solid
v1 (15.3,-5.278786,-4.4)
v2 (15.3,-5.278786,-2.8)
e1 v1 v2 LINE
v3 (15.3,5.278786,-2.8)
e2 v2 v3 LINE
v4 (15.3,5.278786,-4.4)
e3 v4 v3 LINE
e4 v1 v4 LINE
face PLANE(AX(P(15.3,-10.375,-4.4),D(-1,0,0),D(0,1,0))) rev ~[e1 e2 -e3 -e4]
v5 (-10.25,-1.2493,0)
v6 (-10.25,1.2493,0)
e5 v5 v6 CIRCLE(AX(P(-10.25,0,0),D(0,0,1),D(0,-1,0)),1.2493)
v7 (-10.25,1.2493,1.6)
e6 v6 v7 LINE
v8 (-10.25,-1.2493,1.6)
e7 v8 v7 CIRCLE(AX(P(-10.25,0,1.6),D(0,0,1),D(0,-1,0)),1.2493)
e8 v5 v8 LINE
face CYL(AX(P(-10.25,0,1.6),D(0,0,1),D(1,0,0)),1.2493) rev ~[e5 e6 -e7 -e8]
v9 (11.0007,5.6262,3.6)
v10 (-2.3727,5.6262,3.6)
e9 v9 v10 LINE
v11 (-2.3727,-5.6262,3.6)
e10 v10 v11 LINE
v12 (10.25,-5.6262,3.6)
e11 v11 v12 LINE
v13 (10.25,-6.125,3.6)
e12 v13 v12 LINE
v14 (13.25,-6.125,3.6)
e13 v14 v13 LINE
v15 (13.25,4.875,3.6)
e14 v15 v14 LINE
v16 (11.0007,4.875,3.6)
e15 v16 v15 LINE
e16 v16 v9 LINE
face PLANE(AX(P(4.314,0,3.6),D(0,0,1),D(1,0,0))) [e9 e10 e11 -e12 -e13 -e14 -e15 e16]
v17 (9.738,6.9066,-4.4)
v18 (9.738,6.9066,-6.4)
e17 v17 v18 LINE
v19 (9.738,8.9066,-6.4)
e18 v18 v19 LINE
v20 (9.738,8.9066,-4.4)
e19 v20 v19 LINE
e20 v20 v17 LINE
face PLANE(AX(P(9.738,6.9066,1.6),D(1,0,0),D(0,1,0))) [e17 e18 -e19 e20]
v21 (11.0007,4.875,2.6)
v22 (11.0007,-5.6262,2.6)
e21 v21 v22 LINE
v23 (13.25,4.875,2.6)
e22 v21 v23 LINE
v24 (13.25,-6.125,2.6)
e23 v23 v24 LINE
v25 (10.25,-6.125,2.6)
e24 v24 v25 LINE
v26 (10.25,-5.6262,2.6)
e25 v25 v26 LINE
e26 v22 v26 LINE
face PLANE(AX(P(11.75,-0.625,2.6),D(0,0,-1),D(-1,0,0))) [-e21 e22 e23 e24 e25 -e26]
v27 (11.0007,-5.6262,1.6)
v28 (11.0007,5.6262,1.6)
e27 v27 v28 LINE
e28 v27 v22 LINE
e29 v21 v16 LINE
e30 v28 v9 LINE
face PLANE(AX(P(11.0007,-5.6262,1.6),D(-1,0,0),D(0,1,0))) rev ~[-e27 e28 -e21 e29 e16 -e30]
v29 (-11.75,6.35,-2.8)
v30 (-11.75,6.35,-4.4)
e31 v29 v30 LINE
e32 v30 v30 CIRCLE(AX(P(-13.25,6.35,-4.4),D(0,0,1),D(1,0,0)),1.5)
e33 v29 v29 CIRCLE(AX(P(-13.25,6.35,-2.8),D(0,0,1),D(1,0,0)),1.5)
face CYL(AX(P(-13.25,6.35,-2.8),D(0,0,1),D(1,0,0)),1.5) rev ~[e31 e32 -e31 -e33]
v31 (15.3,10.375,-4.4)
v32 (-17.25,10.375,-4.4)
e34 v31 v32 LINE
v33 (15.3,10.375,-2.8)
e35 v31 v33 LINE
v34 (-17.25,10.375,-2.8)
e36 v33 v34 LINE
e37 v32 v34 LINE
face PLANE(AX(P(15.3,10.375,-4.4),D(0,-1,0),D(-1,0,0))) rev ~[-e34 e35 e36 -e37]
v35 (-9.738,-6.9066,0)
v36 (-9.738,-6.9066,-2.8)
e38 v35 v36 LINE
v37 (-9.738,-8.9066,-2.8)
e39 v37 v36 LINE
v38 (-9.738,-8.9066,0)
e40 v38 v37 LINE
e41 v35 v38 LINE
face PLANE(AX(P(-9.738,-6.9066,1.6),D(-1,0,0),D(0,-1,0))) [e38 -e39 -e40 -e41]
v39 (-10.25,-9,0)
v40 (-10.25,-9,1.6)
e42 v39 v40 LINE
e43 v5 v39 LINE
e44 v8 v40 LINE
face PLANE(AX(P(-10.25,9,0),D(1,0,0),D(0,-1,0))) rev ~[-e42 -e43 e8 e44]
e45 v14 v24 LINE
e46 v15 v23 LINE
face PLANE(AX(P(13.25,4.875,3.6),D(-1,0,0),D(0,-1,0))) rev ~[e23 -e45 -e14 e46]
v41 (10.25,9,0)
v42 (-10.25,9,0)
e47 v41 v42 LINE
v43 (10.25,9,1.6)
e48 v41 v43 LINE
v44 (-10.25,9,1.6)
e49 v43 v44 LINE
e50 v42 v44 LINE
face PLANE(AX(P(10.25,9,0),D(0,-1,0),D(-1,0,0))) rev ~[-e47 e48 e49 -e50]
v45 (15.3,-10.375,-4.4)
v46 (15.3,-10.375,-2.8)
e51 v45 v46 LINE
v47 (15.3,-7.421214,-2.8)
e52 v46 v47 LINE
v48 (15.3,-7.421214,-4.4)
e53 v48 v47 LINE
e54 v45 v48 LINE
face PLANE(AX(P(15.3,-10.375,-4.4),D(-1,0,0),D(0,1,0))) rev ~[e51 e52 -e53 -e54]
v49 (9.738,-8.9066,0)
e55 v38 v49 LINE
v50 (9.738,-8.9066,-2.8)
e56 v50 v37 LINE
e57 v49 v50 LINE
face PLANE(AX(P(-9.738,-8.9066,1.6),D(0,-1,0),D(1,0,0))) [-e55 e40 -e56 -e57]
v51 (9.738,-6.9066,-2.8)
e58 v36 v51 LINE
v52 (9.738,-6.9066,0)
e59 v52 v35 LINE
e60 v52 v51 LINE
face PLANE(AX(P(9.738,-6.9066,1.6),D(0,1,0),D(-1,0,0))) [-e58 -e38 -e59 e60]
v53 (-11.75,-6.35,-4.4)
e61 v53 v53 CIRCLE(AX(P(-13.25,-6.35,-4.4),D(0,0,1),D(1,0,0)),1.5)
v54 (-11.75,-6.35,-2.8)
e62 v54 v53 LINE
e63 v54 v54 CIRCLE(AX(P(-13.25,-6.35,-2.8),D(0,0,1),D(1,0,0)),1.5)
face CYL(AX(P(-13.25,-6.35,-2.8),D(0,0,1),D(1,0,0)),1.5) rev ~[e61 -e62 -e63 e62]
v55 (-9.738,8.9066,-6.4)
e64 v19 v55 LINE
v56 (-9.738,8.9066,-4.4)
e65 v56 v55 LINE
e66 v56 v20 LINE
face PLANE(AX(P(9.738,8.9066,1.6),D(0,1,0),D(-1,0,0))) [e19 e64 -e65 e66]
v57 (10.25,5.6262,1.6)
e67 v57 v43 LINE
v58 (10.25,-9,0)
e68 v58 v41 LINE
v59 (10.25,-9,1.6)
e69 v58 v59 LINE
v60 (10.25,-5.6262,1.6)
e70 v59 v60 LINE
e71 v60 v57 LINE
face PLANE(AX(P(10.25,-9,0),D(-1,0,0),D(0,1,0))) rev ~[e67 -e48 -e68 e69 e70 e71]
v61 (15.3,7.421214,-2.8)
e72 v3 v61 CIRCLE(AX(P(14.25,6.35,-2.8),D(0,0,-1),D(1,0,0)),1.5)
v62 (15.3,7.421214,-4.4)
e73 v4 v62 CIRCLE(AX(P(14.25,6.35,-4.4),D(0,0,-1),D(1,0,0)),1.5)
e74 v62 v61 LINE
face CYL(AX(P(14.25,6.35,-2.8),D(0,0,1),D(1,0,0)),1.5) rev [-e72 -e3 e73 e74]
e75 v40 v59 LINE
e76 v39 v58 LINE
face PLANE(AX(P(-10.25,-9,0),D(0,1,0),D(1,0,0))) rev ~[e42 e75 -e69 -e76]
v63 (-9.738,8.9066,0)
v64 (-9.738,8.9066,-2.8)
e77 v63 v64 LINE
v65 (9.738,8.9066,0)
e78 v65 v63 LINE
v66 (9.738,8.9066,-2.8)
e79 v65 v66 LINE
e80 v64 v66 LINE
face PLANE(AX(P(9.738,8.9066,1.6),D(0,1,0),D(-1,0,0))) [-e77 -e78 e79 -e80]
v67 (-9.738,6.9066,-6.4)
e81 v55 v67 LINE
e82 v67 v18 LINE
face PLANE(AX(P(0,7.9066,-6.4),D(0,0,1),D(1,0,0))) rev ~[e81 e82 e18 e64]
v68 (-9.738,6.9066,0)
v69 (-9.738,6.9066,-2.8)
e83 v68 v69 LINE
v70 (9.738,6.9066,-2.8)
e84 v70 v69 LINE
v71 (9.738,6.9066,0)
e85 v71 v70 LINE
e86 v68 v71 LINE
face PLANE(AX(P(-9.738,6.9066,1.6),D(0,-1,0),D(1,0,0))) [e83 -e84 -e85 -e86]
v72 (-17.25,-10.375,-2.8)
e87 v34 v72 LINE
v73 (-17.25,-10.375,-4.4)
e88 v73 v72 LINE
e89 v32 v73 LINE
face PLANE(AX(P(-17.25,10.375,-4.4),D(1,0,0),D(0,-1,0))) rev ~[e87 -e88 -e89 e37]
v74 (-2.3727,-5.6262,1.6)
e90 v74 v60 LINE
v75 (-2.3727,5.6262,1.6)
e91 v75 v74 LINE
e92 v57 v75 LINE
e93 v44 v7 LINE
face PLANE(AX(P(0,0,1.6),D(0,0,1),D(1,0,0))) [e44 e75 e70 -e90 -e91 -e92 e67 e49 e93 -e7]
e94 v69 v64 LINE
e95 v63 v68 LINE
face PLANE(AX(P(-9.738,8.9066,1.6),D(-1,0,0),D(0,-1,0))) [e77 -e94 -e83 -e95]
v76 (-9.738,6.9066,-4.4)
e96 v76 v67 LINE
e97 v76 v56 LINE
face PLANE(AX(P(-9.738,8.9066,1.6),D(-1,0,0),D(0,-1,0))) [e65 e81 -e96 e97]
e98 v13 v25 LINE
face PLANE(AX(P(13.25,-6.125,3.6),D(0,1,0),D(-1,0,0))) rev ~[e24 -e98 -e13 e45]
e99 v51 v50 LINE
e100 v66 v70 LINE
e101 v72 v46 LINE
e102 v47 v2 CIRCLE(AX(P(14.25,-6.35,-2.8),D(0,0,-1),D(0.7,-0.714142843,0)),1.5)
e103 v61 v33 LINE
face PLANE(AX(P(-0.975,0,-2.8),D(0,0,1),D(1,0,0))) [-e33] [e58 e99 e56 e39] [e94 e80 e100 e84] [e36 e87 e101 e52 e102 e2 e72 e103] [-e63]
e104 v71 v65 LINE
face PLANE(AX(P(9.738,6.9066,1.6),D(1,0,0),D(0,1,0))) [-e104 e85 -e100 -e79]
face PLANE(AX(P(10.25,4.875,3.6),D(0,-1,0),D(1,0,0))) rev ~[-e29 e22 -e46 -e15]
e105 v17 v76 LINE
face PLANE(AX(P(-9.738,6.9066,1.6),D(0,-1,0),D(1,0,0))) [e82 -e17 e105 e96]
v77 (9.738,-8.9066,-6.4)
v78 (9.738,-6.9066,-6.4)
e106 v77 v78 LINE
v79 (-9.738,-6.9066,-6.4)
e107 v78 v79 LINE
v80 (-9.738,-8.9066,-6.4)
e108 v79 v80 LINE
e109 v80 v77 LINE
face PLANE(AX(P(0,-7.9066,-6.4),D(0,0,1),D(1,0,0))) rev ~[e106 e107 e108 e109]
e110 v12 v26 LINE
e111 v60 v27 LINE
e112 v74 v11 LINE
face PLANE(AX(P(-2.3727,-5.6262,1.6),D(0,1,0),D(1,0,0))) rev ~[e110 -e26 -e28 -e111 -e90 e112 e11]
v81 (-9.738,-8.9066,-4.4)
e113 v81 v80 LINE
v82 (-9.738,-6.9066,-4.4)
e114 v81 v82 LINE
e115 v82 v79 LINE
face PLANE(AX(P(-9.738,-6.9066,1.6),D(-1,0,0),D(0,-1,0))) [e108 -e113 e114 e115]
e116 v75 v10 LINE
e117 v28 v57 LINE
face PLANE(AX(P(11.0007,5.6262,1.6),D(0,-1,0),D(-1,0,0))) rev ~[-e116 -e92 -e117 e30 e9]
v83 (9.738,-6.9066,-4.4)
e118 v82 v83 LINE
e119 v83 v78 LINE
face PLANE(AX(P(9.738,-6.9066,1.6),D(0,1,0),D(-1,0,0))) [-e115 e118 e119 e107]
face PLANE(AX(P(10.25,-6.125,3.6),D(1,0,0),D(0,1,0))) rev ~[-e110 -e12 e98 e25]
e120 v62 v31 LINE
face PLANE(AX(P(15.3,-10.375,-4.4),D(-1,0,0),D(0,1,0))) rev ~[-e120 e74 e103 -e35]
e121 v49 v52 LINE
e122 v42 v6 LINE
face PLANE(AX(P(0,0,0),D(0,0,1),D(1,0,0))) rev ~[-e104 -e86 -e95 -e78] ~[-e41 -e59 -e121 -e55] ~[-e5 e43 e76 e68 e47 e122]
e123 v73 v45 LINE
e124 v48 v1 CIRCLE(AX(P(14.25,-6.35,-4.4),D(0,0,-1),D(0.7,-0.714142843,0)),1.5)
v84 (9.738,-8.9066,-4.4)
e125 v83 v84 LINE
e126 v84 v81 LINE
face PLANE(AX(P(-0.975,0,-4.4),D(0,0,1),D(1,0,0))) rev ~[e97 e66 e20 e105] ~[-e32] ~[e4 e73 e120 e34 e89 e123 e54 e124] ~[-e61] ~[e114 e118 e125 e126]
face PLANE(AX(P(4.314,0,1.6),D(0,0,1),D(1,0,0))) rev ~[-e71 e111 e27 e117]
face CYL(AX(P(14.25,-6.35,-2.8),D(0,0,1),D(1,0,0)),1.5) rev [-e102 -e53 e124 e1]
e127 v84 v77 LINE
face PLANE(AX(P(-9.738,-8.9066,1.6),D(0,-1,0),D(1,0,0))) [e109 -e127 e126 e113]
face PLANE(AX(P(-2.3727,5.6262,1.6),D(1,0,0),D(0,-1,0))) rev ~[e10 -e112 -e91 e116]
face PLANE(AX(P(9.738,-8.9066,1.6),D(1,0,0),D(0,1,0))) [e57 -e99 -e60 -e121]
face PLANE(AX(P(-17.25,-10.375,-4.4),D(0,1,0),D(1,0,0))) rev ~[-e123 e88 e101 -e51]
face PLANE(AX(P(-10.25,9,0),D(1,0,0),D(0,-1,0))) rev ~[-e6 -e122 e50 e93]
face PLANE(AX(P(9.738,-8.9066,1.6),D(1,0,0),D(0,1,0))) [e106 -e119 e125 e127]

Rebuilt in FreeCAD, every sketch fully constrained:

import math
import FreeCAD as App
import Part
import Sketcher
from FreeCAD import Vector


def add_polygon(sketch, points):
    """Adds a closed chain of lines whose ends are joined by coincident constraints."""
    first, n = sketch.GeometryCount, len(points)
    for a, b in zip(points, points[1:] + points[:1]):
        sketch.addGeometry(Part.LineSegment(App.Vector(*a, 0), App.Vector(*b, 0)), False)
    for i in range(n):
        sketch.addConstraint(Sketcher.Constraint("Coincident", first + i, 2, first + (i + 1) % n, 1))

doc = App.newDocument("Part")
body = doc.addObject("PartDesign::Body", "Body")

# Sketch on XY plane
sketch1 = body.newObject("Sketcher::SketchObject", "Sketch")
sketch1.AttachmentSupport = (doc.getObject("XY_Plane"), [""])
sketch1.MapMode = "FlatFace"
add_polygon(sketch1, [(10, 9), (-10, 9), (-10, -9), (10, -9)])  # lines 0-3
sketch1.addConstraint([
    Sketcher.Constraint("Horizontal", 0),
    Sketcher.Constraint("Vertical", 1),
    Sketcher.Constraint("Horizontal", 2),
    Sketcher.Constraint("Vertical", 3),
    Sketcher.Constraint("Symmetric", 0, 2, 2, 2, -1, 1),
    Sketcher.Constraint("DistanceY", 1, 2, 1, 1, 18.0),
    Sketcher.Constraint("DistanceX", 0, 2, 0, 1, 20.5),
])
pad1 = body.newObject("PartDesign::Pad", "Pad")
pad1.Profile = sketch1
pad1.Length = 1.6

# Sketch on XY plane
sketch2 = body.newObject("Sketcher::SketchObject", "Sketch001")
sketch2.AttachmentSupport = (doc.getObject("XY_Plane"), [""])
sketch2.MapMode = "FlatFace"
sketch2.AttachmentOffset = App.Placement(Vector(0, 0, 1.6), App.Rotation())
sketch2.addGeometry(Part.Circle(Vector(-10.2, 0, 0), Vector(0, 0, 1), 1.2), False)
sketch2.addConstraint([
    Sketcher.Constraint("PointOnObject", 0, 3, -1),
    Sketcher.Constraint("Diameter", 0, 2.4986),
    Sketcher.Constraint("DistanceX", 0, 3, -1, 1, 10.25),
])
pocket1 = body.newObject("PartDesign::Pocket", "Pocket")
pocket1.Profile = sketch2
pocket1.Length = 1.6

# Sketch on XY plane
sketch3 = body.newObject("Sketcher::SketchObject", "Sketch002")
sketch3.AttachmentSupport = (doc.getObject("XY_Plane"), [""])
sketch3.MapMode = "FlatFace"
sketch3.AttachmentOffset = App.Placement(Vector(0, 0, 1.6), App.Rotation())
add_polygon(sketch3, [(9.7, 6.9), (9.7, 8.9), (-9.7, 8.9), (-9.7, 6.9)])  # lines 0-3
add_polygon(sketch3, [(-9.7, -8.9), (9.7, -8.9), (9.7, -6.9), (-9.7, -6.9)])  # lines 4-7
sketch3.addConstraint([
    Sketcher.Constraint("Vertical", 0),
    Sketcher.Constraint("Horizontal", 1),
    Sketcher.Constraint("Vertical", 2),
    Sketcher.Constraint("Horizontal", 3),
    Sketcher.Constraint("Horizontal", 4),
    Sketcher.Constraint("Vertical", 5),
    Sketcher.Constraint("Horizontal", 6),
    Sketcher.Constraint("Vertical", 7),
    Sketcher.Constraint("Symmetric", 1, 2, 4, 2, -1, 1),
    Sketcher.Constraint("Symmetric", 3, 2, 6, 2, -1, 1),
    Sketcher.Constraint("Vertical", 3, 2, 4, 2),
    Sketcher.Constraint("DistanceY", 0, 1, 0, 2, 2.0),
    Sketcher.Constraint("DistanceX", 1, 2, 1, 1, 19.476),
    Sketcher.Constraint("DistanceY", -1, 1, 0, 2, 8.9066),
])
pad2 = body.newObject("PartDesign::Pad", "Pad001")
pad2.Profile = sketch3
pad2.Length = 8
pad2.Reversed = True

# Sketch on XY plane
sketch4 = body.newObject("Sketcher::SketchObject", "Sketch003")
sketch4.AttachmentSupport = (doc.getObject("XY_Plane"), [""])
sketch4.MapMode = "FlatFace"
sketch4.AttachmentOffset = App.Placement(Vector(0, 0, 1.6), App.Rotation())
add_polygon(sketch4, [(11, -6), (11, 6), (-2, 6), (-2, -6)])  # lines 0-3
sketch4.addConstraint([
    Sketcher.Constraint("Vertical", 0),
    Sketcher.Constraint("Horizontal", 1),
    Sketcher.Constraint("Vertical", 2),
    Sketcher.Constraint("Horizontal", 3),
    Sketcher.Constraint("DistanceX", 1, 2, 1, 1, 13.3734),
    Sketcher.Constraint("DistanceY", 0, 1, 0, 2, 11.2524),
    Sketcher.Constraint("DistanceX", -1, 1, 0, 2, 11.0007),
    Sketcher.Constraint("DistanceY", -1, 1, 0, 2, 5.6262),
])
pad3 = body.newObject("PartDesign::Pad", "Pad002")
pad3.Profile = sketch4
pad3.Length = 2

# Sketch on XY plane
sketch5 = body.newObject("Sketcher::SketchObject", "Sketch004")
sketch5.AttachmentSupport = (doc.getObject("XY_Plane"), [""])
sketch5.MapMode = "FlatFace"
sketch5.AttachmentOffset = App.Placement(Vector(0, 0, -4.4), App.Rotation())
add_polygon(sketch5, [(-17, -10), (15, -10), (15, 10), (-17, 10)])  # lines 0-3
sketch5.addConstraint([
    Sketcher.Constraint("Horizontal", 0),
    Sketcher.Constraint("Vertical", 1),
    Sketcher.Constraint("Horizontal", 2),
    Sketcher.Constraint("Vertical", 3),
    Sketcher.Constraint("DistanceX", 0, 1, 0, 2, 32.55),
    Sketcher.Constraint("DistanceY", 1, 1, 1, 2, 20.75),
    Sketcher.Constraint("DistanceX", -1, 1, 0, 2, 15.3),
    Sketcher.Constraint("DistanceY", 0, 2, -1, 1, 10.375),
])
pad4 = body.newObject("PartDesign::Pad", "Pad003")
pad4.Profile = sketch5
pad4.Length = 1.6

# Sketch on XY plane
sketch6 = body.newObject("Sketcher::SketchObject", "Sketch005")
sketch6.AttachmentSupport = (doc.getObject("XY_Plane"), [""])
sketch6.MapMode = "FlatFace"
sketch6.AttachmentOffset = App.Placement(Vector(0, 0, -2.8), App.Rotation())
sketch6.addGeometry([
    Part.Circle(Vector(-13.2, 6.3, 0), Vector(0, 0, 1), 1.5),  # 0
    Part.Circle(Vector(-13.2, -6.3, 0), Vector(0, 0, 1), 1.5),  # 1
    Part.ArcOfCircle(Part.Circle(Vector(14.2, -6.3, 0), Vector(0, 0, 1), 1.5), math.radians(46), math.radians(155)),  # 2
    Part.ArcOfCircle(Part.Circle(Vector(14.2, -6.3, 0), Vector(0, 0, 1), 1.5), math.radians(155), math.radians(314)),  # 3
    Part.LineSegment(Vector(15.3, -7.4, 0), Vector(15.3, -5.3, 0)),  # 4
    Part.ArcOfCircle(Part.Circle(Vector(14.2, 6.3, 0), Vector(0, 0, 1), 1.5), math.radians(46), math.radians(314)),  # 5
    Part.LineSegment(Vector(15.3, 5.3, 0), Vector(15.3, 7.4, 0)),  # 6
], False)
sketch6.addConstraint([
    Sketcher.Constraint("Tangent", 2, 2, 3, 1),
    Sketcher.Constraint("Coincident", 3, 2, 4, 1),
    Sketcher.Constraint("Coincident", 4, 2, 2, 1),
    Sketcher.Constraint("Coincident", 5, 1, 6, 2),
    Sketcher.Constraint("Coincident", 6, 1, 5, 2),
    Sketcher.Constraint("Vertical", 4),
    Sketcher.Constraint("Vertical", 6),
    Sketcher.Constraint("Equal", 0, 1),
    Sketcher.Constraint("Equal", 1, 2),
    Sketcher.Constraint("Equal", 2, 3),
    Sketcher.Constraint("Equal", 3, 5),
    Sketcher.Constraint("Symmetric", 0, 3, 1, 3, -1),
    Sketcher.Constraint("Symmetric", 2, 3, 5, 3, -1),
    Sketcher.Constraint("Horizontal", 1, 3, 2, 3),
    Sketcher.Constraint("Vertical", 4, 2, 5, 1),
    Sketcher.Constraint("Diameter", 0, 3.0),
    Sketcher.Constraint("DistanceY", 2, 2, 6, 1, 11.0),
    Sketcher.Constraint("DistanceX", -1, 1, 3, 2, 15.3),
    Sketcher.Constraint("DistanceY", 1, 3, 0, 3, 12.7),
    Sketcher.Constraint("DistanceX", 1, 3, 2, 3, 27.5),
    Sketcher.Constraint("DistanceX", 0, 3, -1, 1, 13.25),
])
pocket2 = body.newObject("PartDesign::Pocket", "Pocket001")
pocket2.Profile = sketch6
pocket2.Length = 1.6

# Sketch on XY plane
sketch7 = body.newObject("Sketcher::SketchObject", "Sketch006")
sketch7.AttachmentSupport = (doc.getObject("XY_Plane"), [""])
sketch7.MapMode = "FlatFace"
sketch7.AttachmentOffset = App.Placement(Vector(0, 0, 3.6), App.Rotation())
add_polygon(sketch7, [(13.2, -6.1), (13.2, 4.9), (10.2, 4.9), (10.2, -6.1)])  # lines 0-3
sketch7.addConstraint([
    Sketcher.Constraint("Vertical", 0),
    Sketcher.Constraint("Horizontal", 1),
    Sketcher.Constraint("Vertical", 2),
    Sketcher.Constraint("Horizontal", 3),
    Sketcher.Constraint("DistanceX", 1, 2, 1, 1, 3.0),
    Sketcher.Constraint("DistanceY", 0, 1, 0, 2, 11.0),
    Sketcher.Constraint("DistanceX", -1, 1, 0, 2, 13.25),
    Sketcher.Constraint("DistanceY", -1, 1, 0, 2, 4.875),
])
pad5 = body.newObject("PartDesign::Pad", "Pad004")
pad5.Profile = sketch7
pad5.Length = 1
pad5.Reversed = True

doc.recompute()
